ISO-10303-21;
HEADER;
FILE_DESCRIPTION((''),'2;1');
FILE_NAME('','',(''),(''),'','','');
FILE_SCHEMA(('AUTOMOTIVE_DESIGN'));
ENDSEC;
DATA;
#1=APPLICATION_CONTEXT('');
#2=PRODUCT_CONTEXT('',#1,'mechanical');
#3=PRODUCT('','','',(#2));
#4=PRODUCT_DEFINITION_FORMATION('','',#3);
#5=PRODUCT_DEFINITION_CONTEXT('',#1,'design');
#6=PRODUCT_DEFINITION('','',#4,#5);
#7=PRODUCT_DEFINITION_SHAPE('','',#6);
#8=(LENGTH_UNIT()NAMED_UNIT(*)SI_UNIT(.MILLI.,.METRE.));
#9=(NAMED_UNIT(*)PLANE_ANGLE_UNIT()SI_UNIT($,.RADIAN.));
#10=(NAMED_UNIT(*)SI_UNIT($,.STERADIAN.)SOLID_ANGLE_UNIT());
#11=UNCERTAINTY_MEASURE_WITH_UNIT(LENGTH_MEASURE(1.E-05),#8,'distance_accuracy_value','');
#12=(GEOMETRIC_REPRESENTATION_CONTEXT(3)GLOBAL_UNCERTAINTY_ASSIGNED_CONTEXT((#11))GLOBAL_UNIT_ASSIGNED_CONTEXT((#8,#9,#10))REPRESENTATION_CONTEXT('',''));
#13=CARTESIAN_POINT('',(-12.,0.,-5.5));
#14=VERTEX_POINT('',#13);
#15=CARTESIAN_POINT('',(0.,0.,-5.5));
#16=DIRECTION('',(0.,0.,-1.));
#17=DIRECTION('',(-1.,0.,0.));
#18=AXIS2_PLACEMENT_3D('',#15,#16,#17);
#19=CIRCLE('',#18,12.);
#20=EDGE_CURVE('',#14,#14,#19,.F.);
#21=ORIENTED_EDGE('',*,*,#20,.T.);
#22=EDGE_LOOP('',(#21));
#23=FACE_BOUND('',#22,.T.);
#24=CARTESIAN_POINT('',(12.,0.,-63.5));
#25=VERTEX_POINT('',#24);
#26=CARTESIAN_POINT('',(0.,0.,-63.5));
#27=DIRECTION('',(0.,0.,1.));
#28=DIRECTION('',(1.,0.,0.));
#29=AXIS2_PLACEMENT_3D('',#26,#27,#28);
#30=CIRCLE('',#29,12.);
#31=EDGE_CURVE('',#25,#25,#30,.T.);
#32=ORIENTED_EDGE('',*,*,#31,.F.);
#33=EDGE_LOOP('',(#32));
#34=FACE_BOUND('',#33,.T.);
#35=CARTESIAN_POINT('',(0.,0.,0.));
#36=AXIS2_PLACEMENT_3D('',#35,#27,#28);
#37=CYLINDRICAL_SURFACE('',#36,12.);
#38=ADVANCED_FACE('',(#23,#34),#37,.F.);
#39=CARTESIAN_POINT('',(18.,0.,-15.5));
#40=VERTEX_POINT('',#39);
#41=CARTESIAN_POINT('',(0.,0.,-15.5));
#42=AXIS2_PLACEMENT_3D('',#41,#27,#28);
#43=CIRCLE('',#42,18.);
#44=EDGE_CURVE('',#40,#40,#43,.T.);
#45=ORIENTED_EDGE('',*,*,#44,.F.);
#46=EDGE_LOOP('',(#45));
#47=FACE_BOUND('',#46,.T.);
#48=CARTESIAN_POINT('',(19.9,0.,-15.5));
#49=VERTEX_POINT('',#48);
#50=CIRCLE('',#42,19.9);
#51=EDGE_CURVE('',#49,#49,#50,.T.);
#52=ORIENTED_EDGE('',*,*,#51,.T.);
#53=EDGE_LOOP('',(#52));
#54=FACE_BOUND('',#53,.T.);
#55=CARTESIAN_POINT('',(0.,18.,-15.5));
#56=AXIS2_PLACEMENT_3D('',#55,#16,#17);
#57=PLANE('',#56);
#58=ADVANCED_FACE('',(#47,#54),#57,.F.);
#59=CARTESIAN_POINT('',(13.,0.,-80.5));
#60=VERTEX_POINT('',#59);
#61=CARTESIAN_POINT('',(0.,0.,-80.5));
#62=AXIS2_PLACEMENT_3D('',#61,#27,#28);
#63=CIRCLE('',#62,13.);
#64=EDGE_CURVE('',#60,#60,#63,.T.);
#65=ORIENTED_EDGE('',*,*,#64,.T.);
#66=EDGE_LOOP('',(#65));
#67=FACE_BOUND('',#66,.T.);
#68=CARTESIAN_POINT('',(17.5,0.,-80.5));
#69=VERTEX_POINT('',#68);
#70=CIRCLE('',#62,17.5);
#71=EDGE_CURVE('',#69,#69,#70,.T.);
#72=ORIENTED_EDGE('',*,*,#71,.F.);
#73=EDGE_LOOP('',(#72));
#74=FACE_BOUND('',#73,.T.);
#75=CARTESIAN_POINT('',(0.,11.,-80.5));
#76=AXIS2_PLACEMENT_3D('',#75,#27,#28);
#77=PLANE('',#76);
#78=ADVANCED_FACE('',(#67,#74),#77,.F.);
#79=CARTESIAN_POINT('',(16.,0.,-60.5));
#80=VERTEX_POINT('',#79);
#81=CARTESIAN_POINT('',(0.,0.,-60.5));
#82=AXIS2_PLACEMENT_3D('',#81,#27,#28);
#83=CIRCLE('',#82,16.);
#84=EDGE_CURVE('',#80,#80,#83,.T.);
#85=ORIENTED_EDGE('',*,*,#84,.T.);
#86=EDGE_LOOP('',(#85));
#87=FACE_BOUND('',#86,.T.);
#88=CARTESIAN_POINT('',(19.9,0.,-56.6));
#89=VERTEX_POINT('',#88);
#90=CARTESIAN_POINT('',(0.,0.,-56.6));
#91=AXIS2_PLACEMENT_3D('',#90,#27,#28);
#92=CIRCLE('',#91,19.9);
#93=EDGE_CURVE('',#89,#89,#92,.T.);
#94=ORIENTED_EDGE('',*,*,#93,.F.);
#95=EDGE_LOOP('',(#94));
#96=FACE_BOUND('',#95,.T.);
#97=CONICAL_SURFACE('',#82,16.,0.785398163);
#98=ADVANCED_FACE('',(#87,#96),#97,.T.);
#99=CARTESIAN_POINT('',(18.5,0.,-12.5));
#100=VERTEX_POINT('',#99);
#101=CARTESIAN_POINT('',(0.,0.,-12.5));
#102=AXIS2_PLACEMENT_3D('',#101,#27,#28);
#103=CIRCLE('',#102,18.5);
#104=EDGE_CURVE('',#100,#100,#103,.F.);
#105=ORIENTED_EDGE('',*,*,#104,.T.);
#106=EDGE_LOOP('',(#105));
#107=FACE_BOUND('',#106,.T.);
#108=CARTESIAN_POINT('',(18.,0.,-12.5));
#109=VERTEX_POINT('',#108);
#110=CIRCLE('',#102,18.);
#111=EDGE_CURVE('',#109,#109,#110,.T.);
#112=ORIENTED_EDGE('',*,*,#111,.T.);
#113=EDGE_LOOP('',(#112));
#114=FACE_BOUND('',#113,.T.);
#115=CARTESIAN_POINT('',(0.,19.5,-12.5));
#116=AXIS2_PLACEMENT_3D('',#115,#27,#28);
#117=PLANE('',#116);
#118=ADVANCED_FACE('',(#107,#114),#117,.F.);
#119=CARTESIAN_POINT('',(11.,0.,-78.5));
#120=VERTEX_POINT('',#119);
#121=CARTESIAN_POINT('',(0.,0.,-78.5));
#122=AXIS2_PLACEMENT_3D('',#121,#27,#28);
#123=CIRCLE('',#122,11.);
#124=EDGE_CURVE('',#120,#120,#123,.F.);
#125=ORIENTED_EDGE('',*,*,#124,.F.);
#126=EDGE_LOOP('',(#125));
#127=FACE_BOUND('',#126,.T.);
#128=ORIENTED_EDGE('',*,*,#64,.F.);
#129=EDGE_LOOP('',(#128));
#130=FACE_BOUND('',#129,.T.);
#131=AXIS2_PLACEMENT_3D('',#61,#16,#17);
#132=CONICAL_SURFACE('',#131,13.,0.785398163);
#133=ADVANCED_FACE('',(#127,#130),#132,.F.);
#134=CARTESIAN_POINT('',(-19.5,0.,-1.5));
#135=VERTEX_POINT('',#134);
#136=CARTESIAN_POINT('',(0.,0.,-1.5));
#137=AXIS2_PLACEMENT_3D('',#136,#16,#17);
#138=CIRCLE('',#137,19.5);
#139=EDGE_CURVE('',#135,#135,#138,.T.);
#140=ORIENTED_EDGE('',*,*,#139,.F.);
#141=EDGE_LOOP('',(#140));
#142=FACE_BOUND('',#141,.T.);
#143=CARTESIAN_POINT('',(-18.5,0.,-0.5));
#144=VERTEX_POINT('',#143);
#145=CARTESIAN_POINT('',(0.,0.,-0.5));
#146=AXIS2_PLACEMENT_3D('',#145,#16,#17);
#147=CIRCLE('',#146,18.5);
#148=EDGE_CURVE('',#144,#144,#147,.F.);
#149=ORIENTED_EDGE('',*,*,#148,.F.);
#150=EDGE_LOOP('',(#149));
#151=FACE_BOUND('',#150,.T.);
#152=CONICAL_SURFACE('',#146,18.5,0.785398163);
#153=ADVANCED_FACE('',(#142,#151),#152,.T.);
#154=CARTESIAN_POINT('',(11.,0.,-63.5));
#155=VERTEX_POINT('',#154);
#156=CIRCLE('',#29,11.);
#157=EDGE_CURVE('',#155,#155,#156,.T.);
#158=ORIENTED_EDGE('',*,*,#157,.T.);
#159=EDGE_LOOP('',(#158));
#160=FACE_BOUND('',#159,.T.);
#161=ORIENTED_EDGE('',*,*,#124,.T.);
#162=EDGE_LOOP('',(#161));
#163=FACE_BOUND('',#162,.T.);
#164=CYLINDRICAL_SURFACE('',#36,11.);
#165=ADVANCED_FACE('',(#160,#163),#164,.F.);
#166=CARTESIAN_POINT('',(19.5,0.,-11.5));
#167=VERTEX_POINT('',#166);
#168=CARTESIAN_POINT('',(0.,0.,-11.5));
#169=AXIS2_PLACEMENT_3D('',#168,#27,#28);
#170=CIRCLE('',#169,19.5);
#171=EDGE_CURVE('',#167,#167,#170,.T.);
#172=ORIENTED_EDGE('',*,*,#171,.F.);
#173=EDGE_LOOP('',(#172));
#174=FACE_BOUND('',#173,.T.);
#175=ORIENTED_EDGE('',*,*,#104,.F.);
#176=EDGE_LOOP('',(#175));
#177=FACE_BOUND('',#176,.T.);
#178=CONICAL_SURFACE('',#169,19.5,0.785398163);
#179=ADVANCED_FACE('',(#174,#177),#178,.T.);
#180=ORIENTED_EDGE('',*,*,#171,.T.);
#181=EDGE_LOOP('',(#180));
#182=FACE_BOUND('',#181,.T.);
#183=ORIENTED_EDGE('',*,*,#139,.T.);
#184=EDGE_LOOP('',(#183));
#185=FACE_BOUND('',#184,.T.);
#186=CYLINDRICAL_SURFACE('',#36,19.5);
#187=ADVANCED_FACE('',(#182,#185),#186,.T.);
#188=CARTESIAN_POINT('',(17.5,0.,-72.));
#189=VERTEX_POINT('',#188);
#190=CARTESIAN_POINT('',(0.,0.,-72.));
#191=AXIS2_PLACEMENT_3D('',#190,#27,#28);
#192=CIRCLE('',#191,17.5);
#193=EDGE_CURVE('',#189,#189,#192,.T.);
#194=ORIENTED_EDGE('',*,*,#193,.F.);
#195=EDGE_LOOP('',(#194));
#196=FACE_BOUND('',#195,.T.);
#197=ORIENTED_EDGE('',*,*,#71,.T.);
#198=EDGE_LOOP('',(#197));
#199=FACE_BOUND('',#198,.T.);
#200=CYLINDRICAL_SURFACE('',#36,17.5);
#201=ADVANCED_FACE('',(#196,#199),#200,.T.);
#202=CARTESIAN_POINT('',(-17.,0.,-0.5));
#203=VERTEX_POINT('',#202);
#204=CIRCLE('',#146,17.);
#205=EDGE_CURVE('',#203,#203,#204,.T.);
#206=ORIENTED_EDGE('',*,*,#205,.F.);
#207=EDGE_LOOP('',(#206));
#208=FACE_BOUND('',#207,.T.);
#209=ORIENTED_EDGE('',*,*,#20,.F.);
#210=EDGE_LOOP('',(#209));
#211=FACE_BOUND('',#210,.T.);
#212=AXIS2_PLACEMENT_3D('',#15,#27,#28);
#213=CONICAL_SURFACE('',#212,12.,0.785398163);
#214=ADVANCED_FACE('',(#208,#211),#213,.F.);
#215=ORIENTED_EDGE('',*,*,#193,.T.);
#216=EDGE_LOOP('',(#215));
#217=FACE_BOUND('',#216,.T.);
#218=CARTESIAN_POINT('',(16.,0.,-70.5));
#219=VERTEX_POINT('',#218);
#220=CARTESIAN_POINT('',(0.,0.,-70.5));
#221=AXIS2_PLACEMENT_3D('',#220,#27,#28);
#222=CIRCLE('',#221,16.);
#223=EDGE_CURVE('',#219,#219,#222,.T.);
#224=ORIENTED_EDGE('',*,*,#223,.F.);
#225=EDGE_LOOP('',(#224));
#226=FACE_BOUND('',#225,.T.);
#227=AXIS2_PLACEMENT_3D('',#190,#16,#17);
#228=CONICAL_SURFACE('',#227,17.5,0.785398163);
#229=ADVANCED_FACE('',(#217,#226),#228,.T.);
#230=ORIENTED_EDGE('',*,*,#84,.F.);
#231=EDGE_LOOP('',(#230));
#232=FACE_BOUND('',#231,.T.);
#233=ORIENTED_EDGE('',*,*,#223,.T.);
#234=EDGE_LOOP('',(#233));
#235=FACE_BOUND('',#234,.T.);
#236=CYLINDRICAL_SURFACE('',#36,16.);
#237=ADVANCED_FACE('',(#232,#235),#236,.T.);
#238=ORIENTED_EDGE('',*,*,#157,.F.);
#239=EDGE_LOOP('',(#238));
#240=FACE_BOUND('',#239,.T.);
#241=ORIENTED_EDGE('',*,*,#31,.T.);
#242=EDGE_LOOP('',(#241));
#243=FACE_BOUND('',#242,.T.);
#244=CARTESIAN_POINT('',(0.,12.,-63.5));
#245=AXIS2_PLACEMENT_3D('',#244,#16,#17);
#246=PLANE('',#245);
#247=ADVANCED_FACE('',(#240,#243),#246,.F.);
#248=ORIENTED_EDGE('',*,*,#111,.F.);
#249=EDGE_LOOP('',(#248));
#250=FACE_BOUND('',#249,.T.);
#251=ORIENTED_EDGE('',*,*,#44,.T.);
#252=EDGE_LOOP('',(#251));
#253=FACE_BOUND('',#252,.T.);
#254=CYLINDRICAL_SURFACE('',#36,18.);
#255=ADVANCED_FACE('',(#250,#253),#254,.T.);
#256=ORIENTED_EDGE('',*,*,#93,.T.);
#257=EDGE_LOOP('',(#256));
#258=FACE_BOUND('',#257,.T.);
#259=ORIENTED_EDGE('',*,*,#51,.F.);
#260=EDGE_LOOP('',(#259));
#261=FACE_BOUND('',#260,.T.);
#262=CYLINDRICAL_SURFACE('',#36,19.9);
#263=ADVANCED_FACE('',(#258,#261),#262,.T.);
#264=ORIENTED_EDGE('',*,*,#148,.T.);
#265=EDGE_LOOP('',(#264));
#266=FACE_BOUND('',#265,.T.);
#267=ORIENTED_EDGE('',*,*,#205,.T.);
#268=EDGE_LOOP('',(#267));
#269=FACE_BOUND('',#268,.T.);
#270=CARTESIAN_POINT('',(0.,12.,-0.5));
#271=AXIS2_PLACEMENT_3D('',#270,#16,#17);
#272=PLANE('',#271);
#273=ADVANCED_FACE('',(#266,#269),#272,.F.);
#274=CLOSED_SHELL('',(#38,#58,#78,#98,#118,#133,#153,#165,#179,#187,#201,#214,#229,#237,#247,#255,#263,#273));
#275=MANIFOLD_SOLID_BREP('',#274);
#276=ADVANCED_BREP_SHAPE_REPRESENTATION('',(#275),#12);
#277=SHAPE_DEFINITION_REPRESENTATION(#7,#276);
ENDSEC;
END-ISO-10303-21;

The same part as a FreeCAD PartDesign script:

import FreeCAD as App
import Part
import Sketcher

V = App.Vector
Q = App.Units.Quantity


def edges_at(feature, points):
    """Names of the edges that pass closest to the given points."""
    edges = feature.Shape.Edges
    near = lambda p: min(range(len(edges)), key=lambda i: edges[i].distToShape(Part.Vertex(*p))[0])
    return sorted({f"Edge{near(p) + 1}" for p in points})


def add_polygon(sketch, points):
    """Adds a closed chain of lines whose ends are joined by coincident constraints."""
    first, n = sketch.GeometryCount, len(points)
    for a, b in zip(points, points[1:] + points[:1]):
        sketch.addGeometry(Part.LineSegment(App.Vector(*a, 0), App.Vector(*b, 0)), False)
    for i in range(n):
        sketch.addConstraint(Sketcher.Constraint("Coincident", first + i, 2, first + (i + 1) % n, 1))

doc = App.newDocument("Part")
body = doc.addObject("PartDesign::Body", "Body")

sketch1 = doc.addObject("Sketcher::SketchObject", "Sketch")
body.addObject(sketch1)
sketch1.AttachmentSupport = (doc.YZ_Plane, [""])
sketch1.MapMode = "FlatFace"
add_polygon(sketch1, [(19.5, -0.5), (12, -0.5), (12, -63.5), (11, -63.5), (11, -80.5), (17.5, -80.5), (17.5, -72), (16, -70.5), (16, -60.5), (19.9, -56.6), (19.9, -15.5), (18, -15.5), (18, -12.5), (19.5, -12.5)])
sketch1.addConstraint(Sketcher.Constraint("Horizontal", 0))
sketch1.addConstraint(Sketcher.Constraint("Vertical", 1))
sketch1.addConstraint(Sketcher.Constraint("Horizontal", 2))
sketch1.addConstraint(Sketcher.Constraint("Vertical", 3))
sketch1.addConstraint(Sketcher.Constraint("Horizontal", 4))
sketch1.addConstraint(Sketcher.Constraint("Vertical", 5))
sketch1.addConstraint(Sketcher.Constraint("Vertical", 7))
sketch1.addConstraint(Sketcher.Constraint("Vertical", 9))
sketch1.addConstraint(Sketcher.Constraint("Horizontal", 10))
sketch1.addConstraint(Sketcher.Constraint("Vertical", 11))
sketch1.addConstraint(Sketcher.Constraint("Horizontal", 12))
sketch1.addConstraint(Sketcher.Constraint("Vertical", 13))
sketch1.addConstraint(Sketcher.Constraint("Perpendicular", 6, 8))
sketch1.addConstraint(Sketcher.Constraint("DistanceX", 2, 2, 2, 1, Q("1 mm")))
sketch1.addConstraint(Sketcher.Constraint("DistanceY", 1, 2, 1, 1, Q("63 mm")))
sketch1.addConstraint(Sketcher.Constraint("DistanceY", 3, 2, 3, 1, Q("17 mm")))
sketch1.addConstraint(Sketcher.Constraint("DistanceY", 7, 1, 7, 2, Q("10 mm")))
sketch1.addConstraint(Sketcher.Constraint("DistanceY", 11, 1, 11, 2, Q("3 mm")))
sketch1.addConstraint(Sketcher.Constraint("DistanceY", 13, 1, 13, 2, Q("12 mm")))
sketch1.addConstraint(Sketcher.Constraint("Angle", 6, Q("135 deg")))
sketch1.addConstraint(Sketcher.Constraint("DistanceX", 0, 2, 0, 1, Q("7.5 mm")))
sketch1.addConstraint(Sketcher.Constraint("DistanceX", 4, 1, 4, 2, Q("6.5 mm")))
sketch1.addConstraint(Sketcher.Constraint("DistanceX", 10, 2, 10, 1, Q("1.9 mm")))
sketch1.addConstraint(Sketcher.Constraint("DistanceX", 12, 1, 12, 2, Q("1.5 mm")))
sketch1.addConstraint(Sketcher.Constraint("DistanceY", 5, 1, 5, 2, Q("8.5 mm")))
sketch1.addConstraint(Sketcher.Constraint("DistanceY", 9, 1, 9, 2, Q("41.1 mm")))
sketch1.addConstraint(Sketcher.Constraint("DistanceX", -1, 1, 0, 2, Q("12 mm")))
sketch1.addConstraint(Sketcher.Constraint("DistanceY", 5, 2, -1, 1, Q("72 mm")))
revolution = doc.addObject("PartDesign::Revolution", "Revolution")
body.addObject(revolution)
revolution.Profile = sketch1
revolution.ReferenceAxis = (sketch1, ["V_Axis"])
revolution.Angle = 360
doc.recompute()

chamfer = doc.addObject("PartDesign::Chamfer", "Chamfer")
body.addObject(chamfer)
chamfer.Base = (revolution, edges_at(revolution, [(0, -19.5, -0.5), (0, -19.5, -12.5)]))
chamfer.Size = 1
doc.recompute()

chamfer2 = doc.addObject("PartDesign::Chamfer", "Chamfer001")
body.addObject(chamfer2)
chamfer2.Base = (chamfer, edges_at(chamfer, [(0, -11, -80.5)]))
chamfer2.Size = 2
doc.recompute()

chamfer3 = doc.addObject("PartDesign::Chamfer", "Chamfer002")
body.addObject(chamfer3)
chamfer3.Base = (chamfer2, edges_at(chamfer2, [(0, -12, -0.5)]))
chamfer3.Size = 5

doc.recompute()
